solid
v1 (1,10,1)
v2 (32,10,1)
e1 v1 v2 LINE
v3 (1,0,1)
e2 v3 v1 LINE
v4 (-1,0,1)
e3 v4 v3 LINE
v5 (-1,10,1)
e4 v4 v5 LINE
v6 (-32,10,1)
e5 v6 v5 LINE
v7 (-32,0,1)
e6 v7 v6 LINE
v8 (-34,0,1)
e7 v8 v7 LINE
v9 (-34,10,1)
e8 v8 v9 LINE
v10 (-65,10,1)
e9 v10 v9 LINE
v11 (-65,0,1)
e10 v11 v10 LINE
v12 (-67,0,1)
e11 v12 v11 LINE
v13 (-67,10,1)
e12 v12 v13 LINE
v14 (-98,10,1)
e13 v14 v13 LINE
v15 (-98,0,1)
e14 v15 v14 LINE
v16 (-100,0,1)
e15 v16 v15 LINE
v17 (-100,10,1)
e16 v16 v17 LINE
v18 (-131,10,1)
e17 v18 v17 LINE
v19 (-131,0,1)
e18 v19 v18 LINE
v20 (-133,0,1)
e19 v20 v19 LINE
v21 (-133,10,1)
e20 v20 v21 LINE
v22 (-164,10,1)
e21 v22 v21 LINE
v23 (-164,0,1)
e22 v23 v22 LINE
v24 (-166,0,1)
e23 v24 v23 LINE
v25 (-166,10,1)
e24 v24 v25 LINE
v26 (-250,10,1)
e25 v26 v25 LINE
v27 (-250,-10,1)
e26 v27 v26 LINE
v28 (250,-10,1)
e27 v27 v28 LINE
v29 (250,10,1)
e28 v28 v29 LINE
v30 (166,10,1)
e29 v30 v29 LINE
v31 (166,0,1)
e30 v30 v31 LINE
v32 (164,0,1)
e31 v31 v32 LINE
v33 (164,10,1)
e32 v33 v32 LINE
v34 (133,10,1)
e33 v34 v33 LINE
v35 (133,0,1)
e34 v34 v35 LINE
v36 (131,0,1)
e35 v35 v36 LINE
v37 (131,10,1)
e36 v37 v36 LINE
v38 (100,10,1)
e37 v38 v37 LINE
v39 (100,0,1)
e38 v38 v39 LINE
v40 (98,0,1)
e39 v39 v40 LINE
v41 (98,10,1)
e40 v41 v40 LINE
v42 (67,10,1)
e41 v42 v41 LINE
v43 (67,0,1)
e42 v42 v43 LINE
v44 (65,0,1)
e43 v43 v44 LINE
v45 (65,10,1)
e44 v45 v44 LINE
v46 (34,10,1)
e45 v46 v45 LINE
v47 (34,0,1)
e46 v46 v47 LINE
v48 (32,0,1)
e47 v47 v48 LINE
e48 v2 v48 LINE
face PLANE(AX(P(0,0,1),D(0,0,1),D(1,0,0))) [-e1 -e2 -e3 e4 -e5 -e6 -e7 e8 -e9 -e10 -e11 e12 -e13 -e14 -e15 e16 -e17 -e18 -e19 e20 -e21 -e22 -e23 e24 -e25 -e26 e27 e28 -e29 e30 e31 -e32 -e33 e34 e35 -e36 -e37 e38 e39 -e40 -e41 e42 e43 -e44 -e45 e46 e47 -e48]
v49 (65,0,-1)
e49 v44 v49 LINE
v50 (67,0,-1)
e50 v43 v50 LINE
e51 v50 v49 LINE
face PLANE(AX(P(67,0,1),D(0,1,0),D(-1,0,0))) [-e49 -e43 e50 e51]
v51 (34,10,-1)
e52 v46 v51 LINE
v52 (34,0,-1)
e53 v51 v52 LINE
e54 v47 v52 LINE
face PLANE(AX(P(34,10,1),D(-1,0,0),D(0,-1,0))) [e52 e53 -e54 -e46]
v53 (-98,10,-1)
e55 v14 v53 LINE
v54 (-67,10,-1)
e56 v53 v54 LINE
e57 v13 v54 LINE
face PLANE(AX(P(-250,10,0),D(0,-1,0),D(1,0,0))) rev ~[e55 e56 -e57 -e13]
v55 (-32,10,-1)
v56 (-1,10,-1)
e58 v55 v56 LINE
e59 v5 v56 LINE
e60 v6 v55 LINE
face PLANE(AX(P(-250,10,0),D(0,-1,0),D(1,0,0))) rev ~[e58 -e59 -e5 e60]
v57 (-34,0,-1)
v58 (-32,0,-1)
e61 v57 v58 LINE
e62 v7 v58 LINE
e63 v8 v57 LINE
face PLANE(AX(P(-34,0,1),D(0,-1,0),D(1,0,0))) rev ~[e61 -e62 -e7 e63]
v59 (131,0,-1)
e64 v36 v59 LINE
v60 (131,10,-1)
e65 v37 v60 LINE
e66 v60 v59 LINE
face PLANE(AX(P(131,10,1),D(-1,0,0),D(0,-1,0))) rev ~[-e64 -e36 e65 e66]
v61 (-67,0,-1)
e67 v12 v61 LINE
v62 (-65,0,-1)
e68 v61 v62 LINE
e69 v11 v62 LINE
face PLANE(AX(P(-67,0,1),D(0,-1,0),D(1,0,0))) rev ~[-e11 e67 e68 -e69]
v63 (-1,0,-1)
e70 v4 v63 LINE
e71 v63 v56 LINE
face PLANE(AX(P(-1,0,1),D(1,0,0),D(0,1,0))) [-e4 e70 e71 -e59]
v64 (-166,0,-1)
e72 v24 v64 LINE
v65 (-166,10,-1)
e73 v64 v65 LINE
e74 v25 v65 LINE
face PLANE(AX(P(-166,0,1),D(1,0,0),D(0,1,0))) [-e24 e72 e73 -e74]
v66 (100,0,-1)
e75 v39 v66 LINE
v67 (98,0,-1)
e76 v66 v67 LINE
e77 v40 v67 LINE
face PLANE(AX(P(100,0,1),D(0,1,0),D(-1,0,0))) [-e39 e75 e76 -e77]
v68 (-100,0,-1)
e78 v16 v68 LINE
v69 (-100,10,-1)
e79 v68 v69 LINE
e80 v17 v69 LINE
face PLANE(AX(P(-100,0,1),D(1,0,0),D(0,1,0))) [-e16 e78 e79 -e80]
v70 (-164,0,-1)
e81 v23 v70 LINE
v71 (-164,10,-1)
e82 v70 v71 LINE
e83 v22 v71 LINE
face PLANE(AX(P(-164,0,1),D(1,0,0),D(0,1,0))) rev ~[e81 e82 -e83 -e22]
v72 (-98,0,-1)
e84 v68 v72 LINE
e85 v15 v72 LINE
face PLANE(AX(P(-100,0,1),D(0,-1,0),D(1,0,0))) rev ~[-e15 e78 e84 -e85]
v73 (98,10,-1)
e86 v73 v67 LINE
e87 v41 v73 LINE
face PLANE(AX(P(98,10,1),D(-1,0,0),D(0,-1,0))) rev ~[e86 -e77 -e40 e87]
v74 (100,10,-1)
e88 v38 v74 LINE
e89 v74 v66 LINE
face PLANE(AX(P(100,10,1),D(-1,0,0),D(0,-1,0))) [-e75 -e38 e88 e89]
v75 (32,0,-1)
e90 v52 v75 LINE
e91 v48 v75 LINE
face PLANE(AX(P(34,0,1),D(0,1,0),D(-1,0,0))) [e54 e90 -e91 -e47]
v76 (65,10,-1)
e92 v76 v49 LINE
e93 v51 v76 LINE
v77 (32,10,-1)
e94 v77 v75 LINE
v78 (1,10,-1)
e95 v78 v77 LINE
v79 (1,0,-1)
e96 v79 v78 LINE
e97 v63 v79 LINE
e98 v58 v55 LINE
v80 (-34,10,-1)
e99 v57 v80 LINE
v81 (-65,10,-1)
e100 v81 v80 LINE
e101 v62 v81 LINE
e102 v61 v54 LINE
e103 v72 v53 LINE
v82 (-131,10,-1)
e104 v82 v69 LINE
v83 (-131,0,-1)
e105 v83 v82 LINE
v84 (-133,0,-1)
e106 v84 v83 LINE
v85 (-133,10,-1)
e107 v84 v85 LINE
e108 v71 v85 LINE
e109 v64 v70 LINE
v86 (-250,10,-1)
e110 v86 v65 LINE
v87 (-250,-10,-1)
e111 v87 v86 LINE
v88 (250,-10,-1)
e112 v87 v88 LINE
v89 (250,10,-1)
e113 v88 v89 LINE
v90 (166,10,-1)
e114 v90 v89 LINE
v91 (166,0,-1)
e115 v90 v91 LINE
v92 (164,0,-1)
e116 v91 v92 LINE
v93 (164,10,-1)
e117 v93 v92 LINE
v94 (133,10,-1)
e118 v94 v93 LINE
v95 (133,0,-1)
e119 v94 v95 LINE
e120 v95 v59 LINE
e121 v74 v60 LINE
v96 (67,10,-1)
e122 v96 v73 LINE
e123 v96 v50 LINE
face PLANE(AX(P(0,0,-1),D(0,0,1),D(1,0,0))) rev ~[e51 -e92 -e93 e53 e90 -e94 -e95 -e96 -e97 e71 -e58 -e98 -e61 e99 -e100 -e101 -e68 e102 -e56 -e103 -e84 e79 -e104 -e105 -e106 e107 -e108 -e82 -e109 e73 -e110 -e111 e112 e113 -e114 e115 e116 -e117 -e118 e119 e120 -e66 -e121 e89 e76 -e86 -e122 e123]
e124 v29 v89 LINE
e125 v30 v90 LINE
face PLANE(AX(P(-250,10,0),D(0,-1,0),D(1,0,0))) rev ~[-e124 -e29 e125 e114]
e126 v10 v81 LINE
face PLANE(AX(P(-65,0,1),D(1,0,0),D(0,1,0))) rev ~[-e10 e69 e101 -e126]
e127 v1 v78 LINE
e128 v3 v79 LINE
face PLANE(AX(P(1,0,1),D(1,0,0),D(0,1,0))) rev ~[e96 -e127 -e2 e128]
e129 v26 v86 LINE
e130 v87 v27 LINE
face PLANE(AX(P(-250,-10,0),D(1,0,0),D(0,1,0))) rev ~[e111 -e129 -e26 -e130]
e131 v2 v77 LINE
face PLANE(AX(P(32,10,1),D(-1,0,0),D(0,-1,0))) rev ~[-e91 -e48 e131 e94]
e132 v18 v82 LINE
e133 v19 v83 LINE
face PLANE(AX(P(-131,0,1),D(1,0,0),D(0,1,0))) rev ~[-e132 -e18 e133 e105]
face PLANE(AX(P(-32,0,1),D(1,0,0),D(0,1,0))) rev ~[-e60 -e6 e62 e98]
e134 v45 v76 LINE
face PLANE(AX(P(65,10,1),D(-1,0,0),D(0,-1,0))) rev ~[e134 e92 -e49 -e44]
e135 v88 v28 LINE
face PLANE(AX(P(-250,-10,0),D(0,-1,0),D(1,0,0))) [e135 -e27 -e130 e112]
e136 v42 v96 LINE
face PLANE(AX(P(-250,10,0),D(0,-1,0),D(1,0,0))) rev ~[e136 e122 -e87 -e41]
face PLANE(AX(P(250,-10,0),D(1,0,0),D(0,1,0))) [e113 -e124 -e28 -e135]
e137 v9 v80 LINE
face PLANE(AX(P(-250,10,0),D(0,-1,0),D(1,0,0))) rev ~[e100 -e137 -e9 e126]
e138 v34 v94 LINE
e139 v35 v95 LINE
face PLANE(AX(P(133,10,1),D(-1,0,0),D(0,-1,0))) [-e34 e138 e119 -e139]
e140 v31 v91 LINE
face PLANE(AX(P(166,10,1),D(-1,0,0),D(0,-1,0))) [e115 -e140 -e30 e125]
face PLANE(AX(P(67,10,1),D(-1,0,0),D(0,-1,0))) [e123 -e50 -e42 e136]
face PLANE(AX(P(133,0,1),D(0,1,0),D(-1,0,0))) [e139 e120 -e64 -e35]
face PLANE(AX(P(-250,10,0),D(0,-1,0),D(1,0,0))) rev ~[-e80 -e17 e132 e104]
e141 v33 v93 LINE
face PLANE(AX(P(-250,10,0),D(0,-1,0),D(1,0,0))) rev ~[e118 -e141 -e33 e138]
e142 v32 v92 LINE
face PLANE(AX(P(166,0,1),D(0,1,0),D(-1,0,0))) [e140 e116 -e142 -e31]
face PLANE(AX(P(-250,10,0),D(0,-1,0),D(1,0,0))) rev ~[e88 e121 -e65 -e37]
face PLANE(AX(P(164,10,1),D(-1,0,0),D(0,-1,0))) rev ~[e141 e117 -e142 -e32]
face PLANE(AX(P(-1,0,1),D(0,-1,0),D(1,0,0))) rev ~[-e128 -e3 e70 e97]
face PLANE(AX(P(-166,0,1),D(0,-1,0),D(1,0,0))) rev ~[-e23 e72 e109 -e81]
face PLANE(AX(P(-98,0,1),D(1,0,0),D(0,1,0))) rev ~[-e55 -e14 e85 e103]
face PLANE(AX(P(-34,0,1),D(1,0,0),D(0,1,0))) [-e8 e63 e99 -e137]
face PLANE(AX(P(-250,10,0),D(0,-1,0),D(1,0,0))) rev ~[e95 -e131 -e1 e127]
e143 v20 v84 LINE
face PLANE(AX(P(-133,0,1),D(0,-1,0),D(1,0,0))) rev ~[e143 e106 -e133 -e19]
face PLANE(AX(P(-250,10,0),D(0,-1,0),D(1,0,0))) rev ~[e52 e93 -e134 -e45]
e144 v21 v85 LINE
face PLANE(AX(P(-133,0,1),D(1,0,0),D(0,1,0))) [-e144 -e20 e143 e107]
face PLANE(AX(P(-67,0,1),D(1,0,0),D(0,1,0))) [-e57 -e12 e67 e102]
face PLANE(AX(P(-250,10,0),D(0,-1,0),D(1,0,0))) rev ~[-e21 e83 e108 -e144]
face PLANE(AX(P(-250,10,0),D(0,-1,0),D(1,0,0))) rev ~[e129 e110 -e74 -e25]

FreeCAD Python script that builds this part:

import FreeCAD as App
import Part
import Sketcher

V = App.Vector
Q = App.Units.Quantity


def add_polygon(sketch, points):
    """Adds a closed chain of lines whose ends are joined by coincident constraints."""
    first, n = sketch.GeometryCount, len(points)
    for a, b in zip(points, points[1:] + points[:1]):
        sketch.addGeometry(Part.LineSegment(App.Vector(*a, 0), App.Vector(*b, 0)), False)
    for i in range(n):
        sketch.addConstraint(Sketcher.Constraint("Coincident", first + i, 2, first + (i + 1) % n, 1))

doc = App.newDocument("Part")
body = doc.addObject("PartDesign::Body", "Body")

sketch1 = body.newObject("Sketcher::SketchObject", "Sketch")
sketch1.AttachmentSupport = (doc.getObject("XY_Plane"), [""])
sketch1.MapMode = "FlatFace"
add_polygon(sketch1, [(-250, 10), (-250, -10), (250, -10), (250, 10)])
sketch1.addConstraint([
    Sketcher.Constraint("Vertical", 0),
    Sketcher.Constraint("Horizontal", 1),
    Sketcher.Constraint("Vertical", 2),
    Sketcher.Constraint("Horizontal", 3),
    Sketcher.Constraint("Symmetric", 0, 2, 2, 2, -1, 1),
    Sketcher.Constraint("DistanceX", 1, 1, 1, 2, Q("500 mm")),
    Sketcher.Constraint("DistanceY", 0, 2, 0, 1, Q("20 mm")),
])
pad1 = body.newObject("PartDesign::Pad", "Pad")
pad1.Profile = sketch1
pad1.Length = 2
pad1.Midplane = True

sketch2 = body.newObject("Sketcher::SketchObject", "Sketch001")
sketch2.AttachmentSupport = (doc.getObject("XY_Plane"), [""])
sketch2.MapMode = "FlatFace"
sketch2.AttachmentOffset = App.Placement(V(0, 0, 1), App.Rotation())
add_polygon(sketch2, [(-1, 10), (-1, 0), (1, 0), (1, 10)])
sketch2.addConstraint([
    Sketcher.Constraint("Vertical", 0),
    Sketcher.Constraint("Horizontal", 1),
    Sketcher.Constraint("Vertical", 2),
    Sketcher.Constraint("Horizontal", 3),
    Sketcher.Constraint("Symmetric", 0, 2, 1, 2, -1, 1),
    Sketcher.Constraint("DistanceX", 1, 1, 1, 2, Q("2 mm")),
    Sketcher.Constraint("DistanceY", 0, 2, 0, 1, Q("10 mm")),
])
pocket1 = body.newObject("PartDesign::Pocket", "Pocket")
pocket1.Profile = sketch2
pocket1.Type = "ThroughAll"
doc.recompute()

linearpattern = body.newObject("PartDesign::LinearPattern", "LinearPattern")
linearpattern.Originals = [pocket1]
linearpattern.Direction = (doc.getObject("X_Axis"), [""])
linearpattern.Mode = "offset"
linearpattern.Offset = 33
linearpattern.Occurrences = 6
linearpattern.Reversed = True
body.Tip = linearpattern

sketch3 = body.newObject("Sketcher::SketchObject", "Sketch002")
sketch3.AttachmentSupport = (doc.getObject("XY_Plane"), [""])
sketch3.MapMode = "FlatFace"
sketch3.AttachmentOffset = App.Placement(V(0, 0, 1), App.Rotation())
add_polygon(sketch3, [(34, 0), (34, 10), (32, 10), (32, 0)])
sketch3.addConstraint([
    Sketcher.Constraint("Vertical", 0),
    Sketcher.Constraint("Horizontal", 1),
    Sketcher.Constraint("Vertical", 2),
    Sketcher.Constraint("Horizontal", 3),
    Sketcher.Constraint("PointOnObject", 2, 2, -1),
    Sketcher.Constraint("DistanceX", 1, 2, 1, 1, Q("2 mm")),
    Sketcher.Constraint("DistanceY", 0, 1, 0, 2, Q("10 mm")),
    Sketcher.Constraint("DistanceX", -1, 1, 0, 2, Q("34 mm")),
])
pocket2 = body.newObject("PartDesign::Pocket", "Pocket001")
pocket2.Profile = sketch3
pocket2.Type = "ThroughAll"

sketch4 = body.newObject("Sketcher::SketchObject", "Sketch003")
sketch4.AttachmentSupport = (doc.getObject("XY_Plane"), [""])
sketch4.MapMode = "FlatFace"
sketch4.AttachmentOffset = App.Placement(V(0, 0, 1), App.Rotation())
add_polygon(sketch4, [(67, 0), (67, 10), (65, 10), (65, 0)])
sketch4.addConstraint([
    Sketcher.Constraint("Vertical", 0),
    Sketcher.Constraint("Horizontal", 1),
    Sketcher.Constraint("Vertical", 2),
    Sketcher.Constraint("Horizontal", 3),
    Sketcher.Constraint("PointOnObject", 2, 2, -1),
    Sketcher.Constraint("DistanceX", 1, 2, 1, 1, Q("2 mm")),
    Sketcher.Constraint("DistanceY", 0, 1, 0, 2, Q("10 mm")),
    Sketcher.Constraint("DistanceX", -1, 1, 0, 2, Q("67 mm")),
])
pocket3 = body.newObject("PartDesign::Pocket", "Pocket002")
pocket3.Profile = sketch4
pocket3.Type = "ThroughAll"

sketch5 = body.newObject("Sketcher::SketchObject", "Sketch004")
sketch5.AttachmentSupport = (doc.getObject("XY_Plane"), [""])
sketch5.MapMode = "FlatFace"
sketch5.AttachmentOffset = App.Placement(V(0, 0, 1), App.Rotation())
add_polygon(sketch5, [(100, 0), (100, 10), (98, 10), (98, 0)])
sketch5.addConstraint([
    Sketcher.Constraint("Vertical", 0),
    Sketcher.Constraint("Horizontal", 1),
    Sketcher.Constraint("Vertical", 2),
    Sketcher.Constraint("Horizontal", 3),
    Sketcher.Constraint("PointOnObject", 2, 2, -1),
    Sketcher.Constraint("DistanceX", 1, 2, 1, 1, Q("2 mm")),
    Sketcher.Constraint("DistanceY", 0, 1, 0, 2, Q("10 mm")),
    Sketcher.Constraint("DistanceX", -1, 1, 0, 2, Q("100 mm")),
])
pocket4 = body.newObject("PartDesign::Pocket", "Pocket003")
pocket4.Profile = sketch5
pocket4.Type = "ThroughAll"

sketch6 = body.newObject("Sketcher::SketchObject", "Sketch005")
sketch6.AttachmentSupport = (doc.getObject("XY_Plane"), [""])
sketch6.MapMode = "FlatFace"
sketch6.AttachmentOffset = App.Placement(V(0, 0, 1), App.Rotation())
add_polygon(sketch6, [(133, 0), (133, 10), (131, 10), (131, 0)])
sketch6.addConstraint([
    Sketcher.Constraint("Vertical", 0),
    Sketcher.Constraint("Horizontal", 1),
    Sketcher.Constraint("Vertical", 2),
    Sketcher.Constraint("Horizontal", 3),
    Sketcher.Constraint("PointOnObject", 2, 2, -1),
    Sketcher.Constraint("DistanceX", 1, 2, 1, 1, Q("2 mm")),
    Sketcher.Constraint("DistanceY", 0, 1, 0, 2, Q("10 mm")),
    Sketcher.Constraint("DistanceX", -1, 1, 0, 2, Q("133 mm")),
])
pocket5 = body.newObject("PartDesign::Pocket", "Pocket004")
pocket5.Profile = sketch6
pocket5.Type = "ThroughAll"

sketch7 = body.newObject("Sketcher::SketchObject", "Sketch006")
sketch7.AttachmentSupport = (doc.getObject("XY_Plane"), [""])
sketch7.MapMode = "FlatFace"
sketch7.AttachmentOffset = App.Placement(V(0, 0, 1), App.Rotation())
add_polygon(sketch7, [(166, 0), (166, 10), (164, 10), (164, 0)])
sketch7.addConstraint([
    Sketcher.Constraint("Vertical", 0),
    Sketcher.Constraint("Horizontal", 1),
    Sketcher.Constraint("Vertical", 2),
    Sketcher.Constraint("Horizontal", 3),
    Sketcher.Constraint("PointOnObject", 2, 2, -1),
    Sketcher.Constraint("DistanceX", 1, 2, 1, 1, Q("2 mm")),
    Sketcher.Constraint("DistanceY", 0, 1, 0, 2, Q("10 mm")),
    Sketcher.Constraint("DistanceX", -1, 1, 0, 2, Q("166 mm")),
])
pocket6 = body.newObject("PartDesign::Pocket", "Pocket005")
pocket6.Profile = sketch7
pocket6.Type = "ThroughAll"

sketch8 = body.newObject("Sketcher::SketchObject", "Sketch007")
sketch8.AttachmentSupport = (doc.getObject("XY_Plane"), [""])
sketch8.MapMode = "FlatFace"
sketch8.AttachmentOffset = App.Placement(V(0, 0, 1), App.Rotation())
add_polygon(sketch8, [(1, 0), (1, 10), (-1, 10), (-1, 0)])
sketch8.addConstraint([
    Sketcher.Constraint("Vertical", 0),
    Sketcher.Constraint("Horizontal", 1),
    Sketcher.Constraint("Vertical", 2),
    Sketcher.Constraint("Horizontal", 3),
    Sketcher.Constraint("Symmetric", 2, 2, 3, 2, -1, 1),
    Sketcher.Constraint("DistanceX", 1, 2, 1, 1, Q("2 mm")),
    Sketcher.Constraint("DistanceY", 0, 1, 0, 2, Q("10 mm")),
])
pocket7 = body.newObject("PartDesign::Pocket", "Pocket006")
pocket7.Profile = sketch8
pocket7.Type = "ThroughAll"

doc.recompute()
